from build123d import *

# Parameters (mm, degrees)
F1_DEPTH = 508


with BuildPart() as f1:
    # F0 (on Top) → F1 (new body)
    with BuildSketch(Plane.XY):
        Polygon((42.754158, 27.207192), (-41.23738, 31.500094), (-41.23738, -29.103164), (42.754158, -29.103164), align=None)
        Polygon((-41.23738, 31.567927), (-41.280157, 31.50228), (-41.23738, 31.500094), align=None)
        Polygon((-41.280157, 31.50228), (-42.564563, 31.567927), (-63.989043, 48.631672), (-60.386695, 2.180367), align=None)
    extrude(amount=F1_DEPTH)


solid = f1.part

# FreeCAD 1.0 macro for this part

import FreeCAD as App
import Part
import Sketcher
Q = App.Units.Quantity


def add_polygon(sketch, points):
    """Adds a closed chain of lines whose ends are joined by coincident constraints."""
    first, n = sketch.GeometryCount, len(points)
    for a, b in zip(points, points[1:] + points[:1]):
        sketch.addGeometry(Part.LineSegment(App.Vector(*a, 0), App.Vector(*b, 0)), False)
    for i in range(n):
        sketch.addConstraint(Sketcher.Constraint("Coincident", first + i, 2, first + (i + 1) % n, 1))

doc = App.newDocument("Part")
body = doc.addObject("PartDesign::Body", "Body")
body.AllowCompound = True

# Sketch on XY plane
sketch1 = body.newObject("Sketcher::SketchObject", "Sketch")
sketch1.AttachmentSupport = (doc.getObject("XY_Plane"), [""])
sketch1.MapMode = "FlatFace"
add_polygon(sketch1, [(42.754158, 27.207192), (-41.23738, 31.500094), (-41.23738, -29.103164), (42.754158, -29.103164)])  # lines 0-3
add_polygon(sketch1, [(-41.23738, 31.567927), (-41.280157, 31.50228), (-41.23738, 31.500094)])  # lines 4-6
add_polygon(sketch1, [(-41.280157, 31.50228), (-42.564563, 31.567927), (-63.989043, 48.631672), (-60.386695, 2.180367)])  # lines 7-10
sketch1.addConstraint([
    Sketcher.Constraint("Vertical", 1),
    Sketcher.Constraint("Horizontal", 2),
    Sketcher.Constraint("Vertical", 3),
    Sketcher.Constraint("Vertical", 6),
    Sketcher.Constraint("Coincident", 5, 2, 0, 2),
    Sketcher.Constraint("Coincident", 10, 2, 4, 2),
    Sketcher.Constraint("Parallel", 0, 7),
    Sketcher.Constraint("Horizontal", 6, 2, 7, 2),
    Sketcher.Constraint("Distance", 8, 27.389409),
    Sketcher.Constraint("Distance", 9, 46.590779),
    Sketcher.Constraint("DistanceX", 2, 1, 2, 2, 83.991538),
    Sketcher.Constraint("DistanceY", 1, 2, 1, 1, 60.603258),
    Sketcher.Constraint("DistanceY", 3, 1, 3, 2, 56.310356),
    Sketcher.Constraint("DistanceY", 6, 1, 6, 2, 0.067833),
    Sketcher.Constraint("DistanceX", 0, 2, -1, 1, 41.23738),
    Sketcher.Constraint("DistanceY", -1, 1, 3, 2, 27.207192),
    Sketcher.Constraint("DistanceY", -1, 1, 4, 2, 31.50228),
    Sketcher.Constraint("DistanceX", 8, 2, 7, 2, 21.42448),
    Sketcher.Constraint("DistanceY", 9, 2, 7, 2, 29.38756),
    Sketcher.Constraint("Distance", 4, 0.078354),
])
pad1 = body.newObject("PartDesign::Pad", "Pad")
pad1.Profile = sketch1
pad1.Length = Q("20 in")

doc.recompute()
